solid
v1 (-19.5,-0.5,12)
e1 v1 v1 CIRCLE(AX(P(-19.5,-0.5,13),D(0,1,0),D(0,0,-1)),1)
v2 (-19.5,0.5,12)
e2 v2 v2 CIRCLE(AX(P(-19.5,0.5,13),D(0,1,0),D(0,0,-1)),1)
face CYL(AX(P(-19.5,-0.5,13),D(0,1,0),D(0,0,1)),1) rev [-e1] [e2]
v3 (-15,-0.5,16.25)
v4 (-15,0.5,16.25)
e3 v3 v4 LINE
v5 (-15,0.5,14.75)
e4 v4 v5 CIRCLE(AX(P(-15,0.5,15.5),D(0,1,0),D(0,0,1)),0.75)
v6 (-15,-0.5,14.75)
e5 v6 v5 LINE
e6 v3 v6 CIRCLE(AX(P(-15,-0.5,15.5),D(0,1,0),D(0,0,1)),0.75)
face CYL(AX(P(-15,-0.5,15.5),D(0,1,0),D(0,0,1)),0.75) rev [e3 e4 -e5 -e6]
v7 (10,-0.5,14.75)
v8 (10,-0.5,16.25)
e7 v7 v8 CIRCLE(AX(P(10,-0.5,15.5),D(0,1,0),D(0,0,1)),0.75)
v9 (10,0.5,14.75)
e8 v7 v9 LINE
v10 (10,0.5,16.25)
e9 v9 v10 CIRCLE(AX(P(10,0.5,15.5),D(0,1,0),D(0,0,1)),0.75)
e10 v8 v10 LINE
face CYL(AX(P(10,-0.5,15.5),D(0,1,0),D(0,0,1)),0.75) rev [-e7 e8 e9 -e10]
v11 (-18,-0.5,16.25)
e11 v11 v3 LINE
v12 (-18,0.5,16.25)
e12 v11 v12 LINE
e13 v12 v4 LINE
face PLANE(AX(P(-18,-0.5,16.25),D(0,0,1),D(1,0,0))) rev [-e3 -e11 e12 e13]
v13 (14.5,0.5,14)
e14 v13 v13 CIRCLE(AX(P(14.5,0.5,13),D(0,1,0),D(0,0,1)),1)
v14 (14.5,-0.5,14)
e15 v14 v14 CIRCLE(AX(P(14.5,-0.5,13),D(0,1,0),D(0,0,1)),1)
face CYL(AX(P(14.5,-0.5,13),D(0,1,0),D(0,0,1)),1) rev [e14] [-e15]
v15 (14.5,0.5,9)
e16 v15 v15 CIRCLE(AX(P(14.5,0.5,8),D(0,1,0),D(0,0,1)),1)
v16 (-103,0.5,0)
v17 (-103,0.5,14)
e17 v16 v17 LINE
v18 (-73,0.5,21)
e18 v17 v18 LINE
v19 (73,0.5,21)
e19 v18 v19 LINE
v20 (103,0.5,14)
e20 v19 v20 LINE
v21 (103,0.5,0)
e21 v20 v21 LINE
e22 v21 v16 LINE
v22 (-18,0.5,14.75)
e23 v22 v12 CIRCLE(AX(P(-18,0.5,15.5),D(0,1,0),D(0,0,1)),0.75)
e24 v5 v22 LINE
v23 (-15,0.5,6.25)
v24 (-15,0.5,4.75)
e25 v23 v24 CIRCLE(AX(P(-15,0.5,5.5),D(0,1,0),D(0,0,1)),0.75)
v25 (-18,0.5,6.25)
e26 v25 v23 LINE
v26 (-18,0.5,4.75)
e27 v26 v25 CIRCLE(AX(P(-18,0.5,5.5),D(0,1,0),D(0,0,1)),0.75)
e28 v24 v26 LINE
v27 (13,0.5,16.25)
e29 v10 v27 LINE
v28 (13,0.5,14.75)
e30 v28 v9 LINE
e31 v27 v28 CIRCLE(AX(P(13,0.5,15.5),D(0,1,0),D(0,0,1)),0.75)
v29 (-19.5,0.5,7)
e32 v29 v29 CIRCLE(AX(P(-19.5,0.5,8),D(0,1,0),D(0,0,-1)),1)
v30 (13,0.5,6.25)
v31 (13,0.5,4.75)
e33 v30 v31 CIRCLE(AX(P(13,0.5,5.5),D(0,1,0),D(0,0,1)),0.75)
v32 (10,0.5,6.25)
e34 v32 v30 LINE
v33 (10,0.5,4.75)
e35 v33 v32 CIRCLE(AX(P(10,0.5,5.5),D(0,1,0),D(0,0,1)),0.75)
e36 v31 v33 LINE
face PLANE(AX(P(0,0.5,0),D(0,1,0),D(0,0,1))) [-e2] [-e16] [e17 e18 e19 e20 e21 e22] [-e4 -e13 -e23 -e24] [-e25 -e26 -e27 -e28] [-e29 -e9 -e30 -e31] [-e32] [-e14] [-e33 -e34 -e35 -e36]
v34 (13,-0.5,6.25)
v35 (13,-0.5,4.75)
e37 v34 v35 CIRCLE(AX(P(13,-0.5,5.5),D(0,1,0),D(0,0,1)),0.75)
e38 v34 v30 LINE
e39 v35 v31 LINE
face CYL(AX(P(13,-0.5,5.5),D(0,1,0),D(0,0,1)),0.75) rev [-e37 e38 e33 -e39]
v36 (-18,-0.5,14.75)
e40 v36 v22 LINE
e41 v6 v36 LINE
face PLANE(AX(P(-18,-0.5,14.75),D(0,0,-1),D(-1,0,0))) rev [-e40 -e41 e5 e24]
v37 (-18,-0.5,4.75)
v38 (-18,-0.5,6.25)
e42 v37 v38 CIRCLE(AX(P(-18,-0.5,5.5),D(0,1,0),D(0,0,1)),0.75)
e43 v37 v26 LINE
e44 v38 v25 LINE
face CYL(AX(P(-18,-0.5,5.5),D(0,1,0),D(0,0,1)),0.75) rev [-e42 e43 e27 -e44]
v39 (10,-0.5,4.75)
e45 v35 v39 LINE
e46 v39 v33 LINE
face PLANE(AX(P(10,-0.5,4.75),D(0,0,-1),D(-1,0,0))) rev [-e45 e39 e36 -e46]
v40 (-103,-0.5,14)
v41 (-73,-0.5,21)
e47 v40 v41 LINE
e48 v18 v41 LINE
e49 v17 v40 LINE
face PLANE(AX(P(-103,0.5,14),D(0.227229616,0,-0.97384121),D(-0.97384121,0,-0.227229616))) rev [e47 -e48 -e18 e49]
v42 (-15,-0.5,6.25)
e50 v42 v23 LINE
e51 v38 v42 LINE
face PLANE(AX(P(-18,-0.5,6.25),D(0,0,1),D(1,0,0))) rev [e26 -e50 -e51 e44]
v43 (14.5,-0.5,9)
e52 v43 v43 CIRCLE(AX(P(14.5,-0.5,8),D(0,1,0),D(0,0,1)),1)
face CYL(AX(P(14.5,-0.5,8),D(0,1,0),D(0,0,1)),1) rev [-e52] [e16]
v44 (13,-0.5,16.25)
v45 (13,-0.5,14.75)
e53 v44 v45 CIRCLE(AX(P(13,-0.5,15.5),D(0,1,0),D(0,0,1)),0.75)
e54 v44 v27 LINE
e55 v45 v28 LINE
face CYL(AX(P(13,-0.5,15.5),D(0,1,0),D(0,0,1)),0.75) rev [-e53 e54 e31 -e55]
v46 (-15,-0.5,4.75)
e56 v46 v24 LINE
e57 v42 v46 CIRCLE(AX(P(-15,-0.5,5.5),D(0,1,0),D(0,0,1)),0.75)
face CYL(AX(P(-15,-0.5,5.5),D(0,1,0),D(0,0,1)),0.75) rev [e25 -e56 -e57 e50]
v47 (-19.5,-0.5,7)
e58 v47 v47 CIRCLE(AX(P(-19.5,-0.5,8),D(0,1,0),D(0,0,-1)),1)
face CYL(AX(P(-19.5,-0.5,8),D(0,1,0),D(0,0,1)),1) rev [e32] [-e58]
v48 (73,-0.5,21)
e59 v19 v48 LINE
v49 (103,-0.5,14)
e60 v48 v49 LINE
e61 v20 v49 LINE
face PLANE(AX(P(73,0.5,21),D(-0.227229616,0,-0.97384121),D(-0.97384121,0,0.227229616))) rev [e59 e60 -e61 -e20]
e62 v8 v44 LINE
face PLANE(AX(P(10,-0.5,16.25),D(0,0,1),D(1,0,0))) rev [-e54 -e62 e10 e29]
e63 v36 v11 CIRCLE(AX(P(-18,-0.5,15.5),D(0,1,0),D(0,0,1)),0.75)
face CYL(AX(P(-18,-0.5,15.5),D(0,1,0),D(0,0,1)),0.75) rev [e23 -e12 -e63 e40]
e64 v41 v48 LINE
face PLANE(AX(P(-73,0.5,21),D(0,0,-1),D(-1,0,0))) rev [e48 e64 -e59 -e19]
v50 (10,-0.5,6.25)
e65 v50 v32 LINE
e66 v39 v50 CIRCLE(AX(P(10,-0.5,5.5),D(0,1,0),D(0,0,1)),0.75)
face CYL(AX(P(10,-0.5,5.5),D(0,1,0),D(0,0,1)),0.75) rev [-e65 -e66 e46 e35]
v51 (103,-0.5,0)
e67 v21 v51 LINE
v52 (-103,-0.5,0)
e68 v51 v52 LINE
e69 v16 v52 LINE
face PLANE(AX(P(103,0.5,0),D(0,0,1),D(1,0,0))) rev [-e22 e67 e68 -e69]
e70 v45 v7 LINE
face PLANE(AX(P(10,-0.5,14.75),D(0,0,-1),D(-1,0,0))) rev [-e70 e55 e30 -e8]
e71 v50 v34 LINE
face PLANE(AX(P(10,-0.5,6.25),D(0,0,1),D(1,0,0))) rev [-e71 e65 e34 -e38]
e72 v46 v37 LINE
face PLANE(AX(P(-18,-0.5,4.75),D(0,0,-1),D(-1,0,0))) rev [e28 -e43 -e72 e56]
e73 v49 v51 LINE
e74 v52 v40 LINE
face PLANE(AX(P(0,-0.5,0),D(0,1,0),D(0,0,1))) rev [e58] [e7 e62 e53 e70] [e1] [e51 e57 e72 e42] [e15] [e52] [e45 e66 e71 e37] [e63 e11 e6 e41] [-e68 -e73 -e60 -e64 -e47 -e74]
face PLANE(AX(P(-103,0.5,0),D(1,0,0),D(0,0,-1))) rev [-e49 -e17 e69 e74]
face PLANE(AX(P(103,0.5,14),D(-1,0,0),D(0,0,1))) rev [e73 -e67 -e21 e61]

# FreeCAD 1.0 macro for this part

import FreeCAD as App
import Part
import Sketcher
from FreeCAD import Vector

doc = App.newDocument("Part")
body = doc.addObject("PartDesign::Body", "Body")

# Sketch on XZ plane
sketch1 = doc.addObject("Sketcher::SketchObject", "Sketch")
body.addObject(sketch1)
sketch1.AttachmentSupport = (doc.XZ_Plane, [""])
sketch1.MapMode = "FlatFace"
sketch1.addGeometry([
    Part.LineSegment(Vector(103, 0, 0), Vector(-103, 0, 0)),  # 0
    Part.LineSegment(Vector(-103, 0, 0), Vector(-103, 14, 0)),  # 1
    Part.LineSegment(Vector(-103, 14, 0), Vector(-73, 21, 0)),  # 2
    Part.LineSegment(Vector(-73, 21, 0), Vector(73, 21, 0)),  # 3
    Part.LineSegment(Vector(73, 21, 0), Vector(103, 14, 0)),  # 4
    Part.LineSegment(Vector(103, 14, 0), Vector(103, 0, 0)),  # 5
], False)
sketch1.addConstraint([
    Sketcher.Constraint("Coincident", 0, 2, 1, 1),
    Sketcher.Constraint("Coincident", 1, 2, 2, 1),
    Sketcher.Constraint("Coincident", 2, 2, 3, 1),
    Sketcher.Constraint("Coincident", 3, 2, 4, 1),
    Sketcher.Constraint("Coincident", 4, 2, 5, 1),
    Sketcher.Constraint("Coincident", 5, 2, 0, 1),
    Sketcher.Constraint("Horizontal", 0),
    Sketcher.Constraint("Vertical", 1),
    Sketcher.Constraint("Horizontal", 3),
    Sketcher.Constraint("Vertical", 5),
    Sketcher.Constraint("Symmetric", 0, 2, 5, 2, -1, 1),
    Sketcher.Constraint("Horizontal", 1, 2, 4, 2),
    Sketcher.Constraint("Equal", 2, 4),
    Sketcher.Constraint("DistanceX", 0, 2, 0, 1, 206.0),
    Sketcher.Constraint("DistanceX", 3, 1, 3, 2, 146.0),
    Sketcher.Constraint("DistanceY", 1, 1, 1, 2, 14.0),
    Sketcher.Constraint("DistanceY", -1, 1, 2, 2, 21.0),
])
pad1 = doc.addObject("PartDesign::Pad", "Pad")
body.addObject(pad1)
pad1.Profile = sketch1
pad1.Length = 1
pad1.Midplane = True

# Sketch on XZ plane
sketch2 = doc.addObject("Sketcher::SketchObject", "Sketch001")
body.addObject(sketch2)
sketch2.AttachmentSupport = (doc.XZ_Plane, [""])
sketch2.MapMode = "FlatFace"
sketch2.AttachmentOffset = App.Placement(Vector(0, 0, -0.5), App.Rotation())
sketch2.addGeometry([
    Part.Circle(Vector(14.5, 13, 0), Vector(0, 0, 1), 1),  # 0
    Part.Circle(Vector(14.5, 8, 0), Vector(0, 0, 1), 1),  # 1
    Part.Circle(Vector(-19.5, 8, 0), Vector(0, 0, 1), 1),  # 2
    Part.Circle(Vector(-19.5, 13, 0), Vector(0, 0, 1), 1),  # 3
    Part.LineSegment(Vector(10, 4.8, 0), Vector(10, 6.2, 0)),  # 4
    Part.LineSegment(Vector(10, 6.2, 0), Vector(13, 6.2, 0)),  # 5
    Part.LineSegment(Vector(13, 6.2, 0), Vector(13, 4.8, 0)),  # 6
    Part.LineSegment(Vector(13, 4.8, 0), Vector(10, 4.8, 0)),  # 7
    Part.LineSegment(Vector(10, 14.8, 0), Vector(10, 16.2, 0)),  # 8
    Part.LineSegment(Vector(10, 16.2, 0), Vector(13, 16.2, 0)),  # 9
    Part.LineSegment(Vector(13, 16.2, 0), Vector(13, 14.8, 0)),  # 10
    Part.LineSegment(Vector(13, 14.8, 0), Vector(10, 14.8, 0)),  # 11
    Part.LineSegment(Vector(-18, 14.8, 0), Vector(-18, 16.2, 0)),  # 12
    Part.LineSegment(Vector(-18, 16.2, 0), Vector(-15, 16.2, 0)),  # 13
    Part.LineSegment(Vector(-15, 16.2, 0), Vector(-15, 14.8, 0)),  # 14
    Part.LineSegment(Vector(-15, 14.8, 0), Vector(-18, 14.8, 0)),  # 15
    Part.LineSegment(Vector(-18, 4.8, 0), Vector(-18, 6.2, 0)),  # 16
    Part.LineSegment(Vector(-18, 6.2, 0), Vector(-15, 6.2, 0)),  # 17
    Part.LineSegment(Vector(-15, 6.2, 0), Vector(-15, 4.8, 0)),  # 18
    Part.LineSegment(Vector(-15, 4.8, 0), Vector(-18, 4.8, 0)),  # 19
], False)
sketch2.addConstraint([
    Sketcher.Constraint("Coincident", 4, 2, 5, 1),
    Sketcher.Constraint("Coincident", 5, 2, 6, 1),
    Sketcher.Constraint("Coincident", 6, 2, 7, 1),
    Sketcher.Constraint("Coincident", 7, 2, 4, 1),
    Sketcher.Constraint("Coincident", 8, 2, 9, 1),
    Sketcher.Constraint("Coincident", 9, 2, 10, 1),
    Sketcher.Constraint("Coincident", 10, 2, 11, 1),
    Sketcher.Constraint("Coincident", 11, 2, 8, 1),
    Sketcher.Constraint("Coincident", 12, 2, 13, 1),
    Sketcher.Constraint("Coincident", 13, 2, 14, 1),
    Sketcher.Constraint("Coincident", 14, 2, 15, 1),
    Sketcher.Constraint("Coincident", 15, 2, 12, 1),
    Sketcher.Constraint("Coincident", 16, 2, 17, 1),
    Sketcher.Constraint("Coincident", 17, 2, 18, 1),
    Sketcher.Constraint("Coincident", 18, 2, 19, 1),
    Sketcher.Constraint("Coincident", 19, 2, 16, 1),
    Sketcher.Constraint("Vertical", 4),
    Sketcher.Constraint("Horizontal", 5),
    Sketcher.Constraint("Vertical", 6),
    Sketcher.Constraint("Horizontal", 7),
    Sketcher.Constraint("Vertical", 8),
    Sketcher.Constraint("Horizontal", 9),
    Sketcher.Constraint("Vertical", 10),
    Sketcher.Constraint("Horizontal", 11),
    Sketcher.Constraint("Vertical", 12),
    Sketcher.Constraint("Horizontal", 13),
    Sketcher.Constraint("Vertical", 14),
    Sketcher.Constraint("Horizontal", 15),
    Sketcher.Constraint("Vertical", 16),
    Sketcher.Constraint("Horizontal", 17),
    Sketcher.Constraint("Vertical", 18),
    Sketcher.Constraint("Horizontal", 19),
    Sketcher.Constraint("Equal", 0, 1),
    Sketcher.Constraint("Equal", 1, 2),
    Sketcher.Constraint("Equal", 2, 3),
    Sketcher.Constraint("Horizontal", 1, 3, 2, 3),
    Sketcher.Constraint("Horizontal", 0, 3, 3, 3),
    Sketcher.Constraint("Horizontal", 9, 2, 12, 2),
    Sketcher.Constraint("Horizontal", 11, 2, 14, 2),
    Sketcher.Constraint("Horizontal", 5, 2, 16, 2),
    Sketcher.Constraint("Horizontal", 7, 2, 18, 2),
    Sketcher.Constraint("Vertical", 0, 3, 1, 3),
    Sketcher.Constraint("Vertical", 2, 3, 3, 3),
    Sketcher.Constraint("Vertical", 7, 2, 8, 2),
    Sketcher.Constraint("Vertical", 6, 2, 9, 2),
    Sketcher.Constraint("Vertical", 15, 2, 16, 2),
    Sketcher.Constraint("Vertical", 14, 2, 17, 2),
    Sketcher.Constraint("Equal", 11, 13),
    Sketcher.Constraint("Equal", 6, 8),
    Sketcher.Constraint("Diameter", 0, 2.0),
    Sketcher.Constraint("DistanceX", 5, 1, 5, 2, 3.0),
    Sketcher.Constraint("DistanceY", 4, 1, 4, 2, 1.5),
    Sketcher.Constraint("DistanceY", -1, 1, 0, 3, 13.0),
    Sketcher.Constraint("DistanceY", -1, 1, 1, 3, 8.0),
    Sketcher.Constraint("DistanceX", -1, 1, 4, 2, 10.0),
    Sketcher.Constraint("DistanceX", 12, 2, -1, 1, 18.0),
    Sketcher.Constraint("DistanceX", 2, 3, 1, 3, 34.0),
    Sketcher.Constraint("DistanceY", 4, 2, 8, 2, 10.0),
    Sketcher.Constraint("DistanceX", -1, 1, 0, 3, 14.5),
    Sketcher.Constraint("DistanceY", -1, 1, 4, 2, 6.25),
])
pocket1 = doc.addObject("PartDesign::Pocket", "Pocket")
body.addObject(pocket1)
pocket1.Profile = sketch2
pocket1.Type = "ThroughAll"
pocket1.Reversed = True

# Sketch on XZ plane
sketch3 = doc.addObject("Sketcher::SketchObject", "Sketch002")
body.addObject(sketch3)
sketch3.AttachmentSupport = (doc.XZ_Plane, [""])
sketch3.MapMode = "FlatFace"
sketch3.AttachmentOffset = App.Placement(Vector(0, 0, -0.5), App.Rotation())
sketch3.addGeometry([
    Part.Circle(Vector(-18, 5.5, 0), Vector(0, 0, 1), 0.8),  # 0
    Part.Circle(Vector(-15, 5.5, 0), Vector(0, 0, 1), 0.8),  # 1
    Part.Circle(Vector(-18, 15.5, 0), Vector(0, 0, 1), 0.8),  # 2
    Part.Circle(Vector(-15, 15.5, 0), Vector(0, 0, 1), 0.8),  # 3
    Part.Circle(Vector(10, 5.5, 0), Vector(0, 0, 1), 0.8),  # 4
    Part.Circle(Vector(10, 15.5, 0), Vector(0, 0, 1), 0.8),  # 5
    Part.Circle(Vector(13, 15.5, 0), Vector(0, 0, 1), 0.8),  # 6
    Part.Circle(Vector(13, 5.5, 0), Vector(0, 0, 1), 0.8),  # 7
], False)
sketch3.addConstraint([
    Sketcher.Constraint("Equal", 0, 1),
    Sketcher.Constraint("Equal", 1, 2),
    Sketcher.Constraint("Equal", 2, 3),
    Sketcher.Constraint("Equal", 3, 4),
    Sketcher.Constraint("Equal", 4, 5),
    Sketcher.Constraint("Equal", 5, 6),
    Sketcher.Constraint("Equal", 6, 7),
    Sketcher.Constraint("Horizontal", 0, 3, 1, 3),
    Sketcher.Constraint("Horizontal", 2, 3, 3, 3),
    Sketcher.Constraint("Horizontal", 1, 3, 4, 3),
    Sketcher.Constraint("Horizontal", 3, 3, 5, 3),
    Sketcher.Constraint("Horizontal", 5, 3, 6, 3),
    Sketcher.Constraint("Horizontal", 4, 3, 7, 3),
    Sketcher.Constraint("Vertical", 0, 3, 2, 3),
    Sketcher.Constraint("Vertical", 1, 3, 3, 3),
    Sketcher.Constraint("Vertical", 4, 3, 5, 3),
    Sketcher.Constraint("Vertical", 6, 3, 7, 3),
    Sketcher.Constraint("Diameter", 0, 1.5),
    Sketcher.Constraint("DistanceX", 0, 3, -1, 1, 18.0),
    Sketcher.Constraint("DistanceX", 1, 3, -1, 1, 15.0),
    Sketcher.Constraint("DistanceX", -1, 1, 4, 3, 10.0),
    Sketcher.Constraint("DistanceX", -1, 1, 6, 3, 13.0),
    Sketcher.Constraint("DistanceY", 0, 3, 2, 3, 10.0),
    Sketcher.Constraint("DistanceY", -1, 1, 0, 3, 5.5),
])
pocket2 = doc.addObject("PartDesign::Pocket", "Pocket001")
body.addObject(pocket2)
pocket2.Profile = sketch3
pocket2.Type = "ThroughAll"
pocket2.Reversed = True

doc.recompute()
